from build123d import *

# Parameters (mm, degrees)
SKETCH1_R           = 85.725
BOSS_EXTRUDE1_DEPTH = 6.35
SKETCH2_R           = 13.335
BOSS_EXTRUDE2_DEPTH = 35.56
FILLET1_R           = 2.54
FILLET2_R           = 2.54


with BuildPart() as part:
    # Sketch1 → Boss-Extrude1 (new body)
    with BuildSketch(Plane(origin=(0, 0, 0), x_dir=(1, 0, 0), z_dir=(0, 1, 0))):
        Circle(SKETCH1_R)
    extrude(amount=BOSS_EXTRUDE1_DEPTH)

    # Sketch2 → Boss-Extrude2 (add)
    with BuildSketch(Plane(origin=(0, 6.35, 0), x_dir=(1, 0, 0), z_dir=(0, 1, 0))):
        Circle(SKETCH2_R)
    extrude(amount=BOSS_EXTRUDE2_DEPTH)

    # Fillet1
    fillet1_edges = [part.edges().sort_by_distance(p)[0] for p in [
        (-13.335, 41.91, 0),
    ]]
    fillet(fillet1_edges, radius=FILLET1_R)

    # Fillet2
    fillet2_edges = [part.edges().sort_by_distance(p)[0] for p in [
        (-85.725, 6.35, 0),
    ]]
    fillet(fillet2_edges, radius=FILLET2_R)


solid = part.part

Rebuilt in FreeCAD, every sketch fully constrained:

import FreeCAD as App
import Part
import Sketcher

V = App.Vector
Q = App.Units.Quantity


def edges_at(feature, points):
    """Names of the edges that pass closest to the given points."""
    edges = feature.Shape.Edges
    near = lambda p: min(range(len(edges)), key=lambda i: edges[i].distToShape(Part.Vertex(*p))[0])
    return sorted({f"Edge{near(p) + 1}" for p in points})

doc = App.newDocument("Part")
body = doc.addObject("PartDesign::Body", "Body")

sketch1 = body.newObject("Sketcher::SketchObject", "Sketch")
sketch1.AttachmentSupport = (doc.getObject("XZ_Plane"), [""])
sketch1.MapMode = "FlatFace"
sketch1.addGeometry(Part.Circle(V(0, 0, 0), V(0, 0, 1), 86), False)
sketch1.addConstraint(Sketcher.Constraint("Coincident", 0, 3, -1, 1))
sketch1.addConstraint(Sketcher.Constraint("Diameter", 0, Q("6.75 in")))
pad1 = body.newObject("PartDesign::Pad", "Pad")
pad1.Profile = sketch1
pad1.Length = Q("0.25 in")
pad1.Reversed = True

sketch2 = body.newObject("Sketcher::SketchObject", "Sketch001")
sketch2.AttachmentSupport = (doc.getObject("XZ_Plane"), [""])
sketch2.MapMode = "FlatFace"
sketch2.AttachmentOffset = App.Placement(V(0, 0, -0.25 * 25.4), App.Rotation())
sketch2.addGeometry(Part.Circle(V(0, 0, 0), V(0, 0, 1), 13), False)
sketch2.addConstraint(Sketcher.Constraint("Coincident", 0, 3, -1, 1))
sketch2.addConstraint(Sketcher.Constraint("Diameter", 0, Q("1.05 in")))
pad2 = body.newObject("PartDesign::Pad", "Pad001")
pad2.Profile = sketch2
pad2.Length = Q("1.4 in")
pad2.Reversed = True
doc.recompute()

fillet = body.newObject("PartDesign::Fillet", "Fillet")
fillet.Base = (pad2, edges_at(pad2, [(-13.335, 41.91, 0)]))
fillet.Radius = Q("0.1 in")
doc.recompute()

fillet2 = body.newObject("PartDesign::Fillet", "Fillet001")
fillet2.Base = (fillet, edges_at(fillet, [(-85.725, 6.35, 0)]))
fillet2.Radius = Q("0.1 in")

doc.recompute()
